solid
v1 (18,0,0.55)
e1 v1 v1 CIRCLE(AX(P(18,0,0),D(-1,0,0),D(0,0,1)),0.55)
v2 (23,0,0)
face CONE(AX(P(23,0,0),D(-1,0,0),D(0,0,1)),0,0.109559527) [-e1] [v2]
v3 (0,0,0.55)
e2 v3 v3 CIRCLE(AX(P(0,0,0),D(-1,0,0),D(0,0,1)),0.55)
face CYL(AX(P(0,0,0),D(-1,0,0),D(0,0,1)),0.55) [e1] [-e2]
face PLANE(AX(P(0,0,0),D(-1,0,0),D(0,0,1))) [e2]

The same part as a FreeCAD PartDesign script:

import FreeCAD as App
import Part
import Sketcher
Q = App.Units.Quantity


def add_polygon(sketch, points):
    """Adds a closed chain of lines whose ends are joined by coincident constraints."""
    first, n = sketch.GeometryCount, len(points)
    for a, b in zip(points, points[1:] + points[:1]):
        sketch.addGeometry(Part.LineSegment(App.Vector(*a, 0), App.Vector(*b, 0)), False)
    for i in range(n):
        sketch.addConstraint(Sketcher.Constraint("Coincident", first + i, 2, first + (i + 1) % n, 1))

doc = App.newDocument("Part")
body = doc.addObject("PartDesign::Body", "Body")

# Sketch on XY plane
sketch1 = body.newObject("Sketcher::SketchObject", "Sketch")
sketch1.AttachmentSupport = (doc.getObject("XY_Plane"), [""])
sketch1.MapMode = "FlatFace"
add_polygon(sketch1, [(0, 0.6), (0, 0), (23, 0), (18, 0.6)])  # lines 0-3
sketch1.addConstraint(Sketcher.Constraint("Vertical", 0))
sketch1.addConstraint(Sketcher.Constraint("Horizontal", 1))
sketch1.addConstraint(Sketcher.Constraint("Horizontal", 3))
sketch1.addConstraint(Sketcher.Constraint("Coincident", 0, 2, -1, 1))
sketch1.addConstraint(Sketcher.Constraint("DistanceX", 1, 1, 1, 2, Q("23 mm")))
sketch1.addConstraint(Sketcher.Constraint("DistanceX", 3, 2, 3, 1, Q("18 mm")))
sketch1.addConstraint(Sketcher.Constraint("DistanceY", 0, 2, 0, 1, Q("0.55 mm")))
revolution = body.newObject("PartDesign::Revolution", "Revolution")
revolution.Profile = sketch1
revolution.ReferenceAxis = (sketch1, ["H_Axis"])
revolution.Angle = 360

doc.recompute()
